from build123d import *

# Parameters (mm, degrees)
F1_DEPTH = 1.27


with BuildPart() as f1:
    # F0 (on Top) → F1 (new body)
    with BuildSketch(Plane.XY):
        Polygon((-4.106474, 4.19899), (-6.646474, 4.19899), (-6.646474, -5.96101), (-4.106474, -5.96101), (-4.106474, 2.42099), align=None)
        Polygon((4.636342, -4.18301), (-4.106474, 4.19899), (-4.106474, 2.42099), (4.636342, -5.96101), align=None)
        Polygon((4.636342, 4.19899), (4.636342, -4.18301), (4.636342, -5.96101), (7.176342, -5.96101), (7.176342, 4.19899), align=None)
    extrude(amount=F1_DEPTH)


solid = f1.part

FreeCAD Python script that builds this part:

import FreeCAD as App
import Part
import Sketcher
from FreeCAD import Vector
Q = App.Units.Quantity


def add_polygon(sketch, points):
    """Adds a closed chain of lines whose ends are joined by coincident constraints."""
    first, n = sketch.GeometryCount, len(points)
    for a, b in zip(points, points[1:] + points[:1]):
        sketch.addGeometry(Part.LineSegment(App.Vector(*a, 0), App.Vector(*b, 0)), False)
    for i in range(n):
        sketch.addConstraint(Sketcher.Constraint("Coincident", first + i, 2, first + (i + 1) % n, 1))

doc = App.newDocument("Part")
body = doc.addObject("PartDesign::Body", "Body")

# Sketch on XY plane
sketch1 = body.newObject("Sketcher::SketchObject", "Sketch")
sketch1.AttachmentSupport = (doc.getObject("XY_Plane"), [""])
sketch1.MapMode = "FlatFace"
add_polygon(sketch1, [(-4.106474, 4.19899), (-6.646474, 4.19899), (-6.646474, -5.96101), (-4.106474, -5.96101), (-4.106474, 2.42099), (4.636342, -5.96101), (7.176342, -5.96101), (7.176342, 4.19899), (4.636342, 4.19899), (4.636342, -4.18301)])  # lines 0-9
sketch1.addConstraint([
    Sketcher.Constraint("Horizontal", 0),
    Sketcher.Constraint("Vertical", 1),
    Sketcher.Constraint("Horizontal", 2),
    Sketcher.Constraint("Vertical", 3),
    Sketcher.Constraint("Horizontal", 5),
    Sketcher.Constraint("Vertical", 6),
    Sketcher.Constraint("Horizontal", 7),
    Sketcher.Constraint("Vertical", 8),
    Sketcher.Constraint("Parallel", 4, 9),
    Sketcher.Constraint("Horizontal", 2, 2, 4, 2),
    Sketcher.Constraint("Horizontal", 0, 2, 6, 2),
    Sketcher.Constraint("Vertical", 4, 2, 7, 2),
    Sketcher.Constraint("Vertical", 3, 2, 9, 2),
    Sketcher.Constraint("Equal", 2, 5),
    Sketcher.Constraint("DistanceX", 0, 2, 0, 1, Q("0.1 in")),
    Sketcher.Constraint("DistanceY", 1, 2, 1, 1, Q("0.4 in")),
    Sketcher.Constraint("DistanceY", 3, 1, 3, 2, Q("0.33 in")),
    Sketcher.Constraint("Distance", 4, Q("12.111761 mm")),
    Sketcher.Constraint("DistanceY", -1, 1, 0, 2, Q("4.19899 mm")),
    Sketcher.Constraint("DistanceX", 0, 2, -1, 1, Q("6.646474 mm")),
])
pad1 = body.newObject("PartDesign::Pad", "Pad")
pad1.Profile = sketch1
pad1.Length = Q("0.05 in")

doc.recompute()
